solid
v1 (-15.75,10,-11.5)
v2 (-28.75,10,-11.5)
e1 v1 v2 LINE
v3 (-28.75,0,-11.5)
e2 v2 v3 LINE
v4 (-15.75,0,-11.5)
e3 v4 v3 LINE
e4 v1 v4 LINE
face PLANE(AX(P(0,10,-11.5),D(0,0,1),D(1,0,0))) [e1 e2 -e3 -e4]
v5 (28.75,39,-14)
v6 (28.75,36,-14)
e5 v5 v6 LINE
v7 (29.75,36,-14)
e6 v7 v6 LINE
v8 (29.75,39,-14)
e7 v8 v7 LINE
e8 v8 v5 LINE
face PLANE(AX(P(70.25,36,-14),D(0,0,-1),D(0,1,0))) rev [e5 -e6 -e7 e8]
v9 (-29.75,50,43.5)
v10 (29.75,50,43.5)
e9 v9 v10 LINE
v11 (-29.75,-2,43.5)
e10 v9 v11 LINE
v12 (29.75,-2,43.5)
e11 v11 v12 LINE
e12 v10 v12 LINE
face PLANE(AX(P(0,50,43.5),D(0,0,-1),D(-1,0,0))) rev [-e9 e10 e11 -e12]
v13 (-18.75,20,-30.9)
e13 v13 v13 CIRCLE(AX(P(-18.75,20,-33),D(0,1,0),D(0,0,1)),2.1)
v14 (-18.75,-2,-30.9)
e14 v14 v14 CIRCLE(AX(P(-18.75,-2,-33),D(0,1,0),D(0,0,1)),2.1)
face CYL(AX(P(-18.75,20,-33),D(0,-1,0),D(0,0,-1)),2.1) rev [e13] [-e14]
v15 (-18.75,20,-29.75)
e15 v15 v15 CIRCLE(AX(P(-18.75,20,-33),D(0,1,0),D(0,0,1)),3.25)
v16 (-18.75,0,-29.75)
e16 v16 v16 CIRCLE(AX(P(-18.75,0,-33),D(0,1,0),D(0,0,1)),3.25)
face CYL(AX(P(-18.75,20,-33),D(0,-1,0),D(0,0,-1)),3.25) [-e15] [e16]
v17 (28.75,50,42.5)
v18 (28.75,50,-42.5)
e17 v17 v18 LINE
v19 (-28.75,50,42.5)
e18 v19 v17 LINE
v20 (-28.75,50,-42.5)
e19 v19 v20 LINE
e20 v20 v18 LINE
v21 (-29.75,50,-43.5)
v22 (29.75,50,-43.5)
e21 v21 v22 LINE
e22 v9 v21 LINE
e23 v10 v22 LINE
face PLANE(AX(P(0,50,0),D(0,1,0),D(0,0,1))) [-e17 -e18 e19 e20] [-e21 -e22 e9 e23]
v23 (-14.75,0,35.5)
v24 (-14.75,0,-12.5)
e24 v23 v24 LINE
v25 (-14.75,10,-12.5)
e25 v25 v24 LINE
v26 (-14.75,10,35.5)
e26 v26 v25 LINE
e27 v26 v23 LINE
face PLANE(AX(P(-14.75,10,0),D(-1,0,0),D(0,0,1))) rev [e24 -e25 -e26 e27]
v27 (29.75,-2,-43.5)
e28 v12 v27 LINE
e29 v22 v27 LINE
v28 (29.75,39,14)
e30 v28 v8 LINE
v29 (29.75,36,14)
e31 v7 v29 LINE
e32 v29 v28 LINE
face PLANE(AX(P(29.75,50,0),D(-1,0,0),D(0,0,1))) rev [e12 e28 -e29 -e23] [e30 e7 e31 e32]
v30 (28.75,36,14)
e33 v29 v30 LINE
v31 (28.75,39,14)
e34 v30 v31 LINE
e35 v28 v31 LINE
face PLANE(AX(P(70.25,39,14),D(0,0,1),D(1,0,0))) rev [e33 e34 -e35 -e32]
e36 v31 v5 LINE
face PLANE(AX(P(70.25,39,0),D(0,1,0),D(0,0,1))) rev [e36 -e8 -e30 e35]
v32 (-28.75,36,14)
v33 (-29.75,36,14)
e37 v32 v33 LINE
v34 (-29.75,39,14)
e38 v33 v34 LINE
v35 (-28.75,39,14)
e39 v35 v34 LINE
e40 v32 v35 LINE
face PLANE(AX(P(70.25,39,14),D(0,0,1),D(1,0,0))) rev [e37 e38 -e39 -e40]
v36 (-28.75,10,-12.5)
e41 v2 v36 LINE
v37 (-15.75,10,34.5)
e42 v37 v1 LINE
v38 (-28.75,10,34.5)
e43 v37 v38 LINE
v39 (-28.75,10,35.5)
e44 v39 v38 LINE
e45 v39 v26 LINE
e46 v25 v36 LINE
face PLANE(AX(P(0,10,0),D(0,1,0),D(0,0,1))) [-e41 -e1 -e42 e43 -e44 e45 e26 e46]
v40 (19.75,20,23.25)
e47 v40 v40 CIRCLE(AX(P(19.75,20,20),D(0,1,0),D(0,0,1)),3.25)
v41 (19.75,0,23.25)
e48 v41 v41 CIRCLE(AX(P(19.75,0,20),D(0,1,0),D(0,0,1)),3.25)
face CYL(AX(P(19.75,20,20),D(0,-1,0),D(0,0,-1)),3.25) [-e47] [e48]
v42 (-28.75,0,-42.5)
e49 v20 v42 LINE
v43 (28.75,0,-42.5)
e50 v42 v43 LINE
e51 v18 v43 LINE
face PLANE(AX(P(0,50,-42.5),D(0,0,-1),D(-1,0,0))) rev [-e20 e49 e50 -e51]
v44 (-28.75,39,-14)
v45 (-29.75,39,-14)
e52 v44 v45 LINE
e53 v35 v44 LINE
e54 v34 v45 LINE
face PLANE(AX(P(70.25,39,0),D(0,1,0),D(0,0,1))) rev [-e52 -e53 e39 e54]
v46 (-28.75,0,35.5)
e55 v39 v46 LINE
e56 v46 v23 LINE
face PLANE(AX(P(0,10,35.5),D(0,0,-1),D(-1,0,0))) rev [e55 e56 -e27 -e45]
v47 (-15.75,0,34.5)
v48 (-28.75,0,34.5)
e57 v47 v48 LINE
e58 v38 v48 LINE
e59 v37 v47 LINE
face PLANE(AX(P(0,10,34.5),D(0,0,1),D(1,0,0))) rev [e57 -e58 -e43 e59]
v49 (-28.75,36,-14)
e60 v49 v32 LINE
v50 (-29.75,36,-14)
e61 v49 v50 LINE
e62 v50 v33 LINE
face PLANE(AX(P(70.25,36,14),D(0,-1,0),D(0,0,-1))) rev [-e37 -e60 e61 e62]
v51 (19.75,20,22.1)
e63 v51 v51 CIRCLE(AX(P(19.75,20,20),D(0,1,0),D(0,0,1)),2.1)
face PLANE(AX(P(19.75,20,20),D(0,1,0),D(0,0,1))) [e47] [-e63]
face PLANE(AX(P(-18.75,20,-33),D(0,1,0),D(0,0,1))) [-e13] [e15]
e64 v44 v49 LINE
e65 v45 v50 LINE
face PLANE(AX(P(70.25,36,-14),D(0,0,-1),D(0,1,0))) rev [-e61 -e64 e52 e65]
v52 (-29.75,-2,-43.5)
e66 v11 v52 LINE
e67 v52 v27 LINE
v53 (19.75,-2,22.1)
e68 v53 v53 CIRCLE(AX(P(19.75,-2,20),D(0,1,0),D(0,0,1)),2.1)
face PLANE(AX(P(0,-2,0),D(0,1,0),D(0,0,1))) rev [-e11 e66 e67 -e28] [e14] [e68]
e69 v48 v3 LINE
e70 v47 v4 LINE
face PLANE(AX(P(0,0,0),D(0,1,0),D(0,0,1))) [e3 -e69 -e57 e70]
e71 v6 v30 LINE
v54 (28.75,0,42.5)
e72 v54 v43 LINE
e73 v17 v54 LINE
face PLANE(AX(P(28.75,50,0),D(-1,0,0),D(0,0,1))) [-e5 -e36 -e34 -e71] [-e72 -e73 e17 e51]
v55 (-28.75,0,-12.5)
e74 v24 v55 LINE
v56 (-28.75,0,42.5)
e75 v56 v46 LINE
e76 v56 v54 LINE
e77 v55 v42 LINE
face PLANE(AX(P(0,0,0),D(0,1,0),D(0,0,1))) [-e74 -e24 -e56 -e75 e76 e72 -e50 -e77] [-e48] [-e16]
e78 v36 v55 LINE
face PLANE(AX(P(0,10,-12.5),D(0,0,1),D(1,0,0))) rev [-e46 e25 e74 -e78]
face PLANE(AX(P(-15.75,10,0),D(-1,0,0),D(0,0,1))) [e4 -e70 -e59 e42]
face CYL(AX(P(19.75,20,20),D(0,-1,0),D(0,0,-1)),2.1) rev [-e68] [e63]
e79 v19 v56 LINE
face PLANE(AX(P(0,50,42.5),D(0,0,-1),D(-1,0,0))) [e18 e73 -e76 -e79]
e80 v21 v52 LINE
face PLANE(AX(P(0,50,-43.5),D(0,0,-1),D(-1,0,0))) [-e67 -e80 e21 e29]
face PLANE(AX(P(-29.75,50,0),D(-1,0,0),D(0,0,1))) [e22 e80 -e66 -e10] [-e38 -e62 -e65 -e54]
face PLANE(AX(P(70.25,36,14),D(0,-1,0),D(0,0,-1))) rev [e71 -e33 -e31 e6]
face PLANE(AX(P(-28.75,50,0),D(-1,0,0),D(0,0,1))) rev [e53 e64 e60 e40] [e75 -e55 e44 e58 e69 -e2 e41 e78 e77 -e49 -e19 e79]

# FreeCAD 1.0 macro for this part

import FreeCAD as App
import Part
import Sketcher
from FreeCAD import Vector

doc = App.newDocument("Part")
body = doc.addObject("PartDesign::Body", "Body")

# Sketch on XZ plane
sketch1 = body.newObject("Sketcher::SketchObject", "Sketch")
sketch1.AttachmentSupport = (doc.getObject("XZ_Plane"), [""])
sketch1.MapMode = "FlatFace"
sketch1.addGeometry([
    Part.LineSegment(Vector(-30, -44, 0), Vector(-30, 44, 0)),  # 0
    Part.LineSegment(Vector(-30, 44, 0), Vector(30, 44, 0)),  # 1
    Part.LineSegment(Vector(30, 44, 0), Vector(30, -44, 0)),  # 2
    Part.LineSegment(Vector(30, -44, 0), Vector(-30, -44, 0)),  # 3
    Part.LineSegment(Vector(29, 42, 0), Vector(-29, 42, 0)),  # 4
    Part.LineSegment(Vector(-29, 42, 0), Vector(-29, -42, 0)),  # 5
    Part.LineSegment(Vector(-29, -42, 0), Vector(29, -42, 0)),  # 6
    Part.LineSegment(Vector(29, -42, 0), Vector(29, 42, 0)),  # 7
], False)
sketch1.addConstraint([
    Sketcher.Constraint("Coincident", 0, 2, 1, 1),
    Sketcher.Constraint("Coincident", 1, 2, 2, 1),
    Sketcher.Constraint("Coincident", 2, 2, 3, 1),
    Sketcher.Constraint("Coincident", 3, 2, 0, 1),
    Sketcher.Constraint("Coincident", 4, 2, 5, 1),
    Sketcher.Constraint("Coincident", 5, 2, 6, 1),
    Sketcher.Constraint("Coincident", 6, 2, 7, 1),
    Sketcher.Constraint("Coincident", 7, 2, 4, 1),
    Sketcher.Constraint("Vertical", 0),
    Sketcher.Constraint("Horizontal", 1),
    Sketcher.Constraint("Vertical", 2),
    Sketcher.Constraint("Horizontal", 3),
    Sketcher.Constraint("Horizontal", 4),
    Sketcher.Constraint("Vertical", 5),
    Sketcher.Constraint("Horizontal", 6),
    Sketcher.Constraint("Vertical", 7),
    Sketcher.Constraint("Symmetric", 0, 2, 2, 2, -1, 1),
    Sketcher.Constraint("Symmetric", 4, 2, 6, 2, -1, 1),
    Sketcher.Constraint("DistanceY", 0, 1, 0, 2, 87.0),
    Sketcher.Constraint("DistanceY", 5, 2, 5, 1, 85.0),
    Sketcher.Constraint("DistanceX", 1, 1, 1, 2, 59.5),
    Sketcher.Constraint("DistanceX", 4, 2, 4, 1, 57.5),
])
pad1 = body.newObject("PartDesign::Pad", "Pad")
pad1.Profile = sketch1
pad1.Length = 50
pad1.Reversed = True

# Sketch on XZ plane
sketch2 = body.newObject("Sketcher::SketchObject", "Sketch001")
sketch2.AttachmentSupport = (doc.getObject("XZ_Plane"), [""])
sketch2.MapMode = "FlatFace"
sketch2.addGeometry([
    Part.LineSegment(Vector(-28.8, 34.5, 0), Vector(-28.8, 35.5, 0)),  # 0
    Part.LineSegment(Vector(-28.8, 35.5, 0), Vector(-14.8, 35.5, 0)),  # 1
    Part.LineSegment(Vector(-14.8, 35.5, 0), Vector(-14.8, -12.5, 0)),  # 2
    Part.LineSegment(Vector(-14.8, -12.5, 0), Vector(-28.8, -12.5, 0)),  # 3
    Part.LineSegment(Vector(-28.8, -12.5, 0), Vector(-28.8, -11.5, 0)),  # 4
    Part.LineSegment(Vector(-28.8, -11.5, 0), Vector(-15.8, -11.5, 0)),  # 5
    Part.LineSegment(Vector(-15.8, -11.5, 0), Vector(-15.8, 34.5, 0)),  # 6
    Part.LineSegment(Vector(-15.8, 34.5, 0), Vector(-28.8, 34.5, 0)),  # 7
], False)
sketch2.addConstraint([
    Sketcher.Constraint("Coincident", 0, 2, 1, 1),
    Sketcher.Constraint("Coincident", 1, 2, 2, 1),
    Sketcher.Constraint("Coincident", 2, 2, 3, 1),
    Sketcher.Constraint("Coincident", 3, 2, 4, 1),
    Sketcher.Constraint("Coincident", 4, 2, 5, 1),
    Sketcher.Constraint("Coincident", 5, 2, 6, 1),
    Sketcher.Constraint("Coincident", 6, 2, 7, 1),
    Sketcher.Constraint("Coincident", 7, 2, 0, 1),
    Sketcher.Constraint("Vertical", 0),
    Sketcher.Constraint("Horizontal", 1),
    Sketcher.Constraint("Vertical", 2),
    Sketcher.Constraint("Horizontal", 3),
    Sketcher.Constraint("Vertical", 4),
    Sketcher.Constraint("Horizontal", 5),
    Sketcher.Constraint("Vertical", 6),
    Sketcher.Constraint("Horizontal", 7),
    Sketcher.Constraint("Vertical", 0, 2, 3, 2),
    Sketcher.Constraint("Equal", 0, 4),
    Sketcher.Constraint("DistanceX", 1, 1, 1, 2, 14.0),
    Sketcher.Constraint("DistanceX", 5, 1, 5, 2, 13.0),
    Sketcher.Constraint("DistanceY", 0, 1, 0, 2, 1.0),
    Sketcher.Constraint("DistanceY", 2, 2, 2, 1, 48.0),
    Sketcher.Constraint("DistanceY", -1, 1, 0, 2, 35.5),
    Sketcher.Constraint("DistanceX", 0, 2, -1, 1, 28.75),
])
pad2 = body.newObject("PartDesign::Pad", "Pad001")
pad2.Profile = sketch2
pad2.Length = 10
pad2.Reversed = True
body2 = doc.addObject("PartDesign::Body", "Body001")

# Sketch on XZ plane
sketch3 = body2.newObject("Sketcher::SketchObject", "Sketch002")
sketch3.AttachmentSupport = (doc.getObject("XZ_Plane001"), [""])
sketch3.MapMode = "FlatFace"
sketch3.addGeometry([
    Part.Circle(Vector(19.8, 20, 0), Vector(0, 0, 1), 3.2),
    Part.Circle(Vector(19.8, 20, 0), Vector(0, 0, 1), 2.1),
], False)
sketch3.addConstraint([
    Sketcher.Constraint("Coincident", 1, 3, 0, 3),
    Sketcher.Constraint("Diameter", 0, 6.5),
    Sketcher.Constraint("Diameter", 1, 4.2),
    Sketcher.Constraint("DistanceY", -1, 1, 0, 3, 20.0),
    Sketcher.Constraint("DistanceX", -1, 1, 0, 3, 19.75),
])
pad3 = body2.newObject("PartDesign::Pad", "Pad002")
pad3.Profile = sketch3
pad3.Length = 20
pad3.Reversed = True
body3 = doc.addObject("PartDesign::Body", "Body002")

# Sketch on XZ plane
sketch4 = body3.newObject("Sketcher::SketchObject", "Sketch003")
sketch4.AttachmentSupport = (doc.getObject("XZ_Plane002"), [""])
sketch4.MapMode = "FlatFace"
sketch4.addGeometry([
    Part.Circle(Vector(-18.8, -33, 0), Vector(0, 0, 1), 3.2),
    Part.Circle(Vector(-18.8, -33, 0), Vector(0, 0, 1), 2.1),
], False)
sketch4.addConstraint([
    Sketcher.Constraint("Coincident", 1, 3, 0, 3),
    Sketcher.Constraint("Diameter", 0, 6.5),
    Sketcher.Constraint("Diameter", 1, 4.2),
    Sketcher.Constraint("DistanceY", 0, 3, -1, 1, 33.0),
    Sketcher.Constraint("DistanceX", 0, 3, -1, 1, 18.75),
])
pad4 = body3.newObject("PartDesign::Pad", "Pad003")
pad4.Profile = sketch4
pad4.Length = 20
pad4.Reversed = True
body.AllowCompound = True
doc.recompute()

boolean = body.newObject("PartDesign::Boolean", "Boolean")
boolean.Type = "Fuse"
boolean.addObjects([body2])
doc.recompute()

boolean2 = body.newObject("PartDesign::Boolean", "Boolean001")
boolean2.Type = "Fuse"
boolean2.addObjects([body3])

# Sketch on XZ plane
sketch5 = body.newObject("Sketcher::SketchObject", "Sketch004")
sketch5.AttachmentSupport = (doc.getObject("XZ_Plane"), [""])
sketch5.MapMode = "FlatFace"
sketch5.addGeometry([
    Part.LineSegment(Vector(-30, 44, 0), Vector(-30, -44, 0)),
    Part.LineSegment(Vector(-30, -44, 0), Vector(30, -44, 0)),
    Part.LineSegment(Vector(30, -44, 0), Vector(30, 44, 0)),
    Part.LineSegment(Vector(30, 44, 0), Vector(-30, 44, 0)),
], False)
sketch5.addConstraint([
    Sketcher.Constraint("Coincident", 0, 2, 1, 1),
    Sketcher.Constraint("Coincident", 1, 2, 2, 1),
    Sketcher.Constraint("Coincident", 2, 2, 3, 1),
    Sketcher.Constraint("Coincident", 3, 2, 0, 1),
    Sketcher.Constraint("Vertical", 0),
    Sketcher.Constraint("Horizontal", 1),
    Sketcher.Constraint("Vertical", 2),
    Sketcher.Constraint("Horizontal", 3),
    Sketcher.Constraint("Symmetric", 0, 2, 2, 2, -1, 1),
    Sketcher.Constraint("DistanceY", 0, 2, 0, 1, 87.0),
    Sketcher.Constraint("DistanceX", 1, 1, 1, 2, 59.5),
])
pad5 = body.newObject("PartDesign::Pad", "Pad004")
pad5.Profile = sketch5
pad5.Length = 2

# Sketch on XZ plane
sketch6 = body.newObject("Sketcher::SketchObject", "Sketch005")
sketch6.AttachmentSupport = (doc.getObject("XZ_Plane"), [""])
sketch6.MapMode = "FlatFace"
sketch6.addGeometry([
    Part.Circle(Vector(-18.8, -33, 0), Vector(0, 0, 1), 2.1),
    Part.Circle(Vector(19.8, 20, 0), Vector(0, 0, 1), 2.1),
], False)
sketch6.addConstraint([
    Sketcher.Constraint("Equal", 0, 1),
    Sketcher.Constraint("Diameter", 0, 4.2),
    Sketcher.Constraint("DistanceY", 0, 3, -1, 1, 33.0),
    Sketcher.Constraint("DistanceY", -1, 1, 1, 3, 20.0),
    Sketcher.Constraint("DistanceX", 0, 3, 1, 3, 38.5),
    Sketcher.Constraint("DistanceX", 0, 3, -1, 1, 18.75),
])
pocket1 = body.newObject("PartDesign::Pocket", "Pocket")
pocket1.Profile = sketch6
pocket1.Length = 10
pocket1.Reversed = True

# Sketch on YZ plane
sketch7 = body.newObject("Sketcher::SketchObject", "Sketch006")
sketch7.AttachmentSupport = (doc.getObject("YZ_Plane"), [""])
sketch7.MapMode = "FlatFace"
sketch7.AttachmentOffset = App.Placement(Vector(0, 0, -29.75), App.Rotation())
sketch7.addGeometry([
    Part.LineSegment(Vector(39, 14, 0), Vector(39, -14, 0)),
    Part.LineSegment(Vector(39, -14, 0), Vector(36, -14, 0)),
    Part.LineSegment(Vector(36, -14, 0), Vector(36, 14, 0)),
    Part.LineSegment(Vector(36, 14, 0), Vector(39, 14, 0)),
], False)
sketch7.addConstraint([
    Sketcher.Constraint("Coincident", 0, 2, 1, 1),
    Sketcher.Constraint("Coincident", 1, 2, 2, 1),
    Sketcher.Constraint("Coincident", 2, 2, 3, 1),
    Sketcher.Constraint("Coincident", 3, 2, 0, 1),
    Sketcher.Constraint("Vertical", 0),
    Sketcher.Constraint("Horizontal", 1),
    Sketcher.Constraint("Vertical", 2),
    Sketcher.Constraint("Horizontal", 3),
    Sketcher.Constraint("DistanceX", 1, 2, 1, 1, 3.0),
    Sketcher.Constraint("DistanceY", 0, 2, 0, 1, 28.0),
    Sketcher.Constraint("DistanceX", -1, 1, 0, 2, 39.0),
    Sketcher.Constraint("DistanceY", 0, 2, -1, 1, 14.0),
])
pocket2 = body.newObject("PartDesign::Pocket", "Pocket001")
pocket2.Profile = sketch7
pocket2.Length = 100
pocket2.Reversed = True

doc.recompute()
